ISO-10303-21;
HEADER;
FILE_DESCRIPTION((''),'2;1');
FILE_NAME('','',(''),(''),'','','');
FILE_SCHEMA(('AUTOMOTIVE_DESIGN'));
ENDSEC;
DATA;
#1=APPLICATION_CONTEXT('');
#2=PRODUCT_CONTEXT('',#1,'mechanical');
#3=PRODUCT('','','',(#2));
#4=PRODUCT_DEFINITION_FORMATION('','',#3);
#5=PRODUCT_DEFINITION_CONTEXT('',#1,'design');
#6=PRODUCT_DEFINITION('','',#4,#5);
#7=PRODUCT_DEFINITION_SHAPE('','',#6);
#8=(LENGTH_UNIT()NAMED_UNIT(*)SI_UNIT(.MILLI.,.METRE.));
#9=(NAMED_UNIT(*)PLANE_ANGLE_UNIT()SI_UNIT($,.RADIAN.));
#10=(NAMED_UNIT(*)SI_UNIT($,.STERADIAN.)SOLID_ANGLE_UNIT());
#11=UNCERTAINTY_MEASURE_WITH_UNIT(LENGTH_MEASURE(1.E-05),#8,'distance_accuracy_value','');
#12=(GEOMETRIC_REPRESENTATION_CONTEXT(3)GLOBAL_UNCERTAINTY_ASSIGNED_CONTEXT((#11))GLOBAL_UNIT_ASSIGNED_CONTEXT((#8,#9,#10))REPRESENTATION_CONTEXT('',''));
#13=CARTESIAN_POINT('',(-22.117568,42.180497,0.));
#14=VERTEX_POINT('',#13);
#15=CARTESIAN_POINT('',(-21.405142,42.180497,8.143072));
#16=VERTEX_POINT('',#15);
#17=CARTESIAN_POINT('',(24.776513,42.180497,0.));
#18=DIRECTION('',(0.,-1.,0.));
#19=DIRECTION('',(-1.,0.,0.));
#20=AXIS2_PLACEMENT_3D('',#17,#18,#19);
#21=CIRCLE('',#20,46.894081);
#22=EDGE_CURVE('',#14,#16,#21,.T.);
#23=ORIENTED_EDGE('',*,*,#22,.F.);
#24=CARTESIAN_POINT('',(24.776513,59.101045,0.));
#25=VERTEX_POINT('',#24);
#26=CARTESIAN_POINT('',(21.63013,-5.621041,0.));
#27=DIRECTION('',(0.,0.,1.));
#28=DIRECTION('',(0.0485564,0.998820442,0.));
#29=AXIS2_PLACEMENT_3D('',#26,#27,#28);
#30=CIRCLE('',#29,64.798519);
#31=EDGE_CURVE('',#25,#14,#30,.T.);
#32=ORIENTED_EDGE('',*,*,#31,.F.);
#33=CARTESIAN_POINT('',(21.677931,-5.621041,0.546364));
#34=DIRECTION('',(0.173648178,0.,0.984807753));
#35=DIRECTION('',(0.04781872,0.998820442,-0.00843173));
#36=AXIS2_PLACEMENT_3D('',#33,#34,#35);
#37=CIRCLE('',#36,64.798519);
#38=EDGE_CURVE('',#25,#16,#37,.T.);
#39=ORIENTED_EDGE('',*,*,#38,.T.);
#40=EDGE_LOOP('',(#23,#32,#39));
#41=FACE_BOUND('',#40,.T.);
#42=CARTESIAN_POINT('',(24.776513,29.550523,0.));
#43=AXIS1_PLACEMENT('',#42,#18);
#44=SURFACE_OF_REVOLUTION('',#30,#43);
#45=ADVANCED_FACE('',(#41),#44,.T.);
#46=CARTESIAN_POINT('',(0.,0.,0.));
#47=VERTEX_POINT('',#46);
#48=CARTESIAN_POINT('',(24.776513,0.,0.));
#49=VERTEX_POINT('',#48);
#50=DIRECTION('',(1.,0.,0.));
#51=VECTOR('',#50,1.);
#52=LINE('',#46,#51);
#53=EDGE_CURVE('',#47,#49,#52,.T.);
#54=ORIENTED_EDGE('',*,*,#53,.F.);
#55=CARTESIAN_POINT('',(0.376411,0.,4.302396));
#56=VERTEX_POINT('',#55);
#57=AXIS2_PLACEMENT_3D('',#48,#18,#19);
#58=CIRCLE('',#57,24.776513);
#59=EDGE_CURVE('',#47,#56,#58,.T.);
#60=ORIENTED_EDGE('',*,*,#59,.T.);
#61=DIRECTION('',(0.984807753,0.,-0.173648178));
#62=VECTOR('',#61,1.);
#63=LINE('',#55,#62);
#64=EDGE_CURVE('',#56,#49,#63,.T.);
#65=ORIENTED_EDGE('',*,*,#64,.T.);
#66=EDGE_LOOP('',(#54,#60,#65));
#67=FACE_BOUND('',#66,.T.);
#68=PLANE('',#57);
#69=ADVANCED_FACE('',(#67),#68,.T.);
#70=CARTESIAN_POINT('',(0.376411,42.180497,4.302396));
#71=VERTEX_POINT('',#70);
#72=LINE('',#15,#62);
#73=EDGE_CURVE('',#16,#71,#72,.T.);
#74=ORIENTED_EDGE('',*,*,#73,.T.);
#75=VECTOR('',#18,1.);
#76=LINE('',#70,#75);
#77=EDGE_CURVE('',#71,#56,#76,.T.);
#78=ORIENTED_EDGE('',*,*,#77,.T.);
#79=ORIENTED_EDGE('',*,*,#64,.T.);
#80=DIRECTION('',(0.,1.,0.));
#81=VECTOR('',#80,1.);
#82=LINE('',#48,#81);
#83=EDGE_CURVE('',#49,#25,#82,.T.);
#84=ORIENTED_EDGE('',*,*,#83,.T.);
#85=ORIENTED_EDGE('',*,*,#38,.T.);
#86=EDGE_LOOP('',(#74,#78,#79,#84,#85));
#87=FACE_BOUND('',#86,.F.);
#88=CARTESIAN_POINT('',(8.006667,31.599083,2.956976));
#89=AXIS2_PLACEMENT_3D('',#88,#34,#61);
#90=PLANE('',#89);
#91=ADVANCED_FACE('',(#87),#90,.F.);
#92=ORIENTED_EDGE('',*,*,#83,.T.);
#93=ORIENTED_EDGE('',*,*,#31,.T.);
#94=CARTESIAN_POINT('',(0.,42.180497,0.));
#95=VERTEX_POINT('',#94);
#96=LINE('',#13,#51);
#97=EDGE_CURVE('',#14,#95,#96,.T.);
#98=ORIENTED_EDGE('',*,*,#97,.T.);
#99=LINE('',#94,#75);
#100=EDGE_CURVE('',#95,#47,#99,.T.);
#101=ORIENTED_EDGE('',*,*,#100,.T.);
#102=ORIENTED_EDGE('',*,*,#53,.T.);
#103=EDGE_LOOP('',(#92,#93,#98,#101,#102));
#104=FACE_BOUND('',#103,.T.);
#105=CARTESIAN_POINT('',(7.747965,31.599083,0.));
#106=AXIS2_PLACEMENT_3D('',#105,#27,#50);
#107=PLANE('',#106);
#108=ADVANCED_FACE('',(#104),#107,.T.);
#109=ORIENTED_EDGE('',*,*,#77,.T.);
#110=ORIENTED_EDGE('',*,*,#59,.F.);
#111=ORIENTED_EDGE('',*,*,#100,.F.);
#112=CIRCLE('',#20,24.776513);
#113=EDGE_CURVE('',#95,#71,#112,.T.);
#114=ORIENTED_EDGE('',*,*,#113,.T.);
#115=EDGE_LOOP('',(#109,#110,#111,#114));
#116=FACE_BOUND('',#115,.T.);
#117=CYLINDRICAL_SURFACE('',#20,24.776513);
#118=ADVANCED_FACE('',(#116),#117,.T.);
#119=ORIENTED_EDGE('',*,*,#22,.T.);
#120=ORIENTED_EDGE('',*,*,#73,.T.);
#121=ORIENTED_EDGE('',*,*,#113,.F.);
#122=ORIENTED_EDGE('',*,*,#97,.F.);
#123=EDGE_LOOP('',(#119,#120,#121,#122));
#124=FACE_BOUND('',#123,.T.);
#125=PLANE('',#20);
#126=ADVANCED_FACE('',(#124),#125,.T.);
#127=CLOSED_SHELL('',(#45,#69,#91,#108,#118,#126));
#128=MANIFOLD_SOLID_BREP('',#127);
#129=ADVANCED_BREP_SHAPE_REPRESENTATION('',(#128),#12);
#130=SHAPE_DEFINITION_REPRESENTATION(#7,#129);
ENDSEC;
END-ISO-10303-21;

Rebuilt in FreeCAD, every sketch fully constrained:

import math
import FreeCAD as App
import Part
import Sketcher

doc = App.newDocument("Part")
params = doc.addObject("Spreadsheet::Sheet", "Params")
for row, (alias, value) in enumerate([
    ("revolution_angle", "350 deg"),
], start=1):
    params.set(f"A{row}", alias)
    params.set(f"B{row}", "=" + value)
    params.setAlias(f"B{row}", alias)

body = doc.addObject("PartDesign::Body", "Body")

# Sketch on XY plane
sketch1 = body.newObject("Sketcher::SketchObject", "Sketch")
sketch1.AttachmentSupport = (doc.getObject("XY_Plane"), [""])
sketch1.MapMode = "FlatFace"
sketch1.addGeometry(Part.LineSegment(App.Vector(0, 42, 0), App.Vector(0, 0, 0)), False)
sketch1.addGeometry(Part.LineSegment(App.Vector(0, 0, 0), App.Vector(25, 0, 0)), False)
sketch1.addGeometry(Part.LineSegment(App.Vector(25, 0, 0), App.Vector(25, 59, 0)), False)
sketch1.addGeometry(Part.ArcOfCircle(Part.Circle(App.Vector(22, -6, 0), App.Vector(0, 0, 1), 65), math.radians(87), math.radians(132)), False)
sketch1.addGeometry(Part.LineSegment(App.Vector(-22, 42, 0), App.Vector(0, 42, 0)), False)
sketch1.addGeometry(Part.LineSegment(App.Vector(25, -6, 0), App.Vector(25, 59, 0)), True)  # axis
sketch1.addConstraint(Sketcher.Constraint("Coincident", 0, 2, 1, 1))
sketch1.addConstraint(Sketcher.Constraint("Coincident", 1, 2, 2, 1))
sketch1.addConstraint(Sketcher.Constraint("Coincident", 2, 2, 3, 1))
sketch1.addConstraint(Sketcher.Constraint("Coincident", 3, 2, 4, 1))
sketch1.addConstraint(Sketcher.Constraint("Coincident", 4, 2, 0, 1))
sketch1.addConstraint(Sketcher.Constraint("Vertical", 0))
sketch1.addConstraint(Sketcher.Constraint("Horizontal", 1))
sketch1.addConstraint(Sketcher.Constraint("Vertical", 2))
sketch1.addConstraint(Sketcher.Constraint("Horizontal", 4))
sketch1.addConstraint(Sketcher.Constraint("Vertical", 5))
sketch1.addConstraint(Sketcher.Constraint("Coincident", 0, 2, -1, 1))
sketch1.addConstraint(Sketcher.Constraint("Coincident", 5, 2, 2, 2))
sketch1.addConstraint(Sketcher.Constraint("Horizontal", 3, 3, 5, 1))
sketch1.addConstraint(Sketcher.Constraint("Radius", 3, 64.798519))
sketch1.addConstraint(Sketcher.Constraint("DistanceX", 3, 2, 3, 3, 43.747698))
sketch1.addConstraint(Sketcher.Constraint("DistanceX", 1, 1, 1, 2, 24.776513))
sketch1.addConstraint(Sketcher.Constraint("DistanceX", 4, 1, 4, 2, 22.117568))
sketch1.addConstraint(Sketcher.Constraint("DistanceY", 0, 2, 0, 1, 42.180497))
revolution = body.newObject("PartDesign::Revolution", "Revolution")
revolution.Profile = sketch1
revolution.ReferenceAxis = (sketch1, ["Axis0"])
revolution.setExpression("Angle", "Params.revolution_angle")
revolution.Reversed = True

doc.recompute()
